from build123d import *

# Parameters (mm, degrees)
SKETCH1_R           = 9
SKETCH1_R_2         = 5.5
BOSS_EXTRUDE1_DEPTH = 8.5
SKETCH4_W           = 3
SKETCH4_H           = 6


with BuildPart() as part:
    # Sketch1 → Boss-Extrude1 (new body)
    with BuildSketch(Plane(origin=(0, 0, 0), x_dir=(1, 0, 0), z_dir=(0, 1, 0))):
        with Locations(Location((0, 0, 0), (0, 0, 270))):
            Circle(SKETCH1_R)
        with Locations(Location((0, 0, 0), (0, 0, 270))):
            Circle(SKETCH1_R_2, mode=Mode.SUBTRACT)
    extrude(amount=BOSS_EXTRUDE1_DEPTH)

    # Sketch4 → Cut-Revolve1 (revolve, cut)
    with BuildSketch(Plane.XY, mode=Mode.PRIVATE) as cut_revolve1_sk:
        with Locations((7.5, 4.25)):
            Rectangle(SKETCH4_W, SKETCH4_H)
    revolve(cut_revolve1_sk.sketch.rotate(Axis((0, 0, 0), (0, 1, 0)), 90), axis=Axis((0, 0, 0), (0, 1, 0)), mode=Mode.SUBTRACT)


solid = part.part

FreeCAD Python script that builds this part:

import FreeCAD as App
import Part
import Sketcher
from FreeCAD import Vector

doc = App.newDocument("Part")
params = doc.addObject("Spreadsheet::Sheet", "Params")
for row, (alias, value) in enumerate([
    ("sketch1_diameter", "18 mm"),
    ("sketch1_diameter2", "11 mm"),
    ("pad1_length", "8.5 mm"),
    ("sketch2_width", "3 mm"),
    ("sketch2_height", "6 mm"),
    ("groove_angle", "360 deg"),
], start=1):
    params.set(f"A{row}", alias)
    params.set(f"B{row}", "=" + value)
    params.setAlias(f"B{row}", alias)

body = doc.addObject("PartDesign::Body", "Body")

# Sketch on XZ plane
sketch1 = body.newObject("Sketcher::SketchObject", "Sketch")
sketch1.AttachmentSupport = (doc.getObject("XZ_Plane"), [""])
sketch1.MapMode = "FlatFace"
sketch1.addGeometry([
    Part.Circle(Vector(0, 0, 0), Vector(0, 0, 1), 9),
    Part.Circle(Vector(0, 0, 0), Vector(0, 0, 1), 6),
], False)
sketch1.addConstraint([
    Sketcher.Constraint("Coincident", 0, 3, -1, 1),
    Sketcher.Constraint("Coincident", 1, 3, -1, 1),
    Sketcher.Constraint("Diameter", 0, 18.0),
    Sketcher.Constraint("Diameter", 1, 11.0),
])
sketch1.setExpression("Constraints[2]", "Params.sketch1_diameter")
sketch1.setExpression("Constraints[3]", "Params.sketch1_diameter2")
pad1 = body.newObject("PartDesign::Pad", "Pad")
pad1.Profile = sketch1
pad1.setExpression("Length", "Params.pad1_length")
pad1.Reversed = True

# Sketch on XY plane
sketch2 = body.newObject("Sketcher::SketchObject", "Sketch001")
sketch2.AttachmentSupport = (doc.getObject("XY_Plane"), [""])
sketch2.MapMode = "FlatFace"
sketch2.addGeometry([
    Part.LineSegment(Vector(6, 7.2, 0), Vector(6, 1.2, 0)),
    Part.LineSegment(Vector(6, 1.2, 0), Vector(9, 1.2, 0)),
    Part.LineSegment(Vector(9, 1.2, 0), Vector(9, 7.2, 0)),
    Part.LineSegment(Vector(9, 7.2, 0), Vector(6, 7.2, 0)),
], False)
sketch2.addConstraint([
    Sketcher.Constraint("Coincident", 0, 2, 1, 1),
    Sketcher.Constraint("Coincident", 1, 2, 2, 1),
    Sketcher.Constraint("Coincident", 2, 2, 3, 1),
    Sketcher.Constraint("Coincident", 3, 2, 0, 1),
    Sketcher.Constraint("Vertical", 0),
    Sketcher.Constraint("Horizontal", 1),
    Sketcher.Constraint("Vertical", 2),
    Sketcher.Constraint("Horizontal", 3),
    Sketcher.Constraint("DistanceX", 1, 1, 1, 2, 3.0),
    Sketcher.Constraint("DistanceY", 0, 2, 0, 1, 6.0),
    Sketcher.Constraint("DistanceX", -1, 1, 0, 2, 6.0),
    Sketcher.Constraint("DistanceY", -1, 1, 0, 2, 1.25),
])
sketch2.setExpression("Constraints[8]", "Params.sketch2_width")
sketch2.setExpression("Constraints[9]", "Params.sketch2_height")
groove = body.newObject("PartDesign::Groove", "Groove")
groove.Profile = sketch2
groove.ReferenceAxis = (sketch2, ["V_Axis"])
groove.setExpression("Angle", "Params.groove_angle")

doc.recompute()
